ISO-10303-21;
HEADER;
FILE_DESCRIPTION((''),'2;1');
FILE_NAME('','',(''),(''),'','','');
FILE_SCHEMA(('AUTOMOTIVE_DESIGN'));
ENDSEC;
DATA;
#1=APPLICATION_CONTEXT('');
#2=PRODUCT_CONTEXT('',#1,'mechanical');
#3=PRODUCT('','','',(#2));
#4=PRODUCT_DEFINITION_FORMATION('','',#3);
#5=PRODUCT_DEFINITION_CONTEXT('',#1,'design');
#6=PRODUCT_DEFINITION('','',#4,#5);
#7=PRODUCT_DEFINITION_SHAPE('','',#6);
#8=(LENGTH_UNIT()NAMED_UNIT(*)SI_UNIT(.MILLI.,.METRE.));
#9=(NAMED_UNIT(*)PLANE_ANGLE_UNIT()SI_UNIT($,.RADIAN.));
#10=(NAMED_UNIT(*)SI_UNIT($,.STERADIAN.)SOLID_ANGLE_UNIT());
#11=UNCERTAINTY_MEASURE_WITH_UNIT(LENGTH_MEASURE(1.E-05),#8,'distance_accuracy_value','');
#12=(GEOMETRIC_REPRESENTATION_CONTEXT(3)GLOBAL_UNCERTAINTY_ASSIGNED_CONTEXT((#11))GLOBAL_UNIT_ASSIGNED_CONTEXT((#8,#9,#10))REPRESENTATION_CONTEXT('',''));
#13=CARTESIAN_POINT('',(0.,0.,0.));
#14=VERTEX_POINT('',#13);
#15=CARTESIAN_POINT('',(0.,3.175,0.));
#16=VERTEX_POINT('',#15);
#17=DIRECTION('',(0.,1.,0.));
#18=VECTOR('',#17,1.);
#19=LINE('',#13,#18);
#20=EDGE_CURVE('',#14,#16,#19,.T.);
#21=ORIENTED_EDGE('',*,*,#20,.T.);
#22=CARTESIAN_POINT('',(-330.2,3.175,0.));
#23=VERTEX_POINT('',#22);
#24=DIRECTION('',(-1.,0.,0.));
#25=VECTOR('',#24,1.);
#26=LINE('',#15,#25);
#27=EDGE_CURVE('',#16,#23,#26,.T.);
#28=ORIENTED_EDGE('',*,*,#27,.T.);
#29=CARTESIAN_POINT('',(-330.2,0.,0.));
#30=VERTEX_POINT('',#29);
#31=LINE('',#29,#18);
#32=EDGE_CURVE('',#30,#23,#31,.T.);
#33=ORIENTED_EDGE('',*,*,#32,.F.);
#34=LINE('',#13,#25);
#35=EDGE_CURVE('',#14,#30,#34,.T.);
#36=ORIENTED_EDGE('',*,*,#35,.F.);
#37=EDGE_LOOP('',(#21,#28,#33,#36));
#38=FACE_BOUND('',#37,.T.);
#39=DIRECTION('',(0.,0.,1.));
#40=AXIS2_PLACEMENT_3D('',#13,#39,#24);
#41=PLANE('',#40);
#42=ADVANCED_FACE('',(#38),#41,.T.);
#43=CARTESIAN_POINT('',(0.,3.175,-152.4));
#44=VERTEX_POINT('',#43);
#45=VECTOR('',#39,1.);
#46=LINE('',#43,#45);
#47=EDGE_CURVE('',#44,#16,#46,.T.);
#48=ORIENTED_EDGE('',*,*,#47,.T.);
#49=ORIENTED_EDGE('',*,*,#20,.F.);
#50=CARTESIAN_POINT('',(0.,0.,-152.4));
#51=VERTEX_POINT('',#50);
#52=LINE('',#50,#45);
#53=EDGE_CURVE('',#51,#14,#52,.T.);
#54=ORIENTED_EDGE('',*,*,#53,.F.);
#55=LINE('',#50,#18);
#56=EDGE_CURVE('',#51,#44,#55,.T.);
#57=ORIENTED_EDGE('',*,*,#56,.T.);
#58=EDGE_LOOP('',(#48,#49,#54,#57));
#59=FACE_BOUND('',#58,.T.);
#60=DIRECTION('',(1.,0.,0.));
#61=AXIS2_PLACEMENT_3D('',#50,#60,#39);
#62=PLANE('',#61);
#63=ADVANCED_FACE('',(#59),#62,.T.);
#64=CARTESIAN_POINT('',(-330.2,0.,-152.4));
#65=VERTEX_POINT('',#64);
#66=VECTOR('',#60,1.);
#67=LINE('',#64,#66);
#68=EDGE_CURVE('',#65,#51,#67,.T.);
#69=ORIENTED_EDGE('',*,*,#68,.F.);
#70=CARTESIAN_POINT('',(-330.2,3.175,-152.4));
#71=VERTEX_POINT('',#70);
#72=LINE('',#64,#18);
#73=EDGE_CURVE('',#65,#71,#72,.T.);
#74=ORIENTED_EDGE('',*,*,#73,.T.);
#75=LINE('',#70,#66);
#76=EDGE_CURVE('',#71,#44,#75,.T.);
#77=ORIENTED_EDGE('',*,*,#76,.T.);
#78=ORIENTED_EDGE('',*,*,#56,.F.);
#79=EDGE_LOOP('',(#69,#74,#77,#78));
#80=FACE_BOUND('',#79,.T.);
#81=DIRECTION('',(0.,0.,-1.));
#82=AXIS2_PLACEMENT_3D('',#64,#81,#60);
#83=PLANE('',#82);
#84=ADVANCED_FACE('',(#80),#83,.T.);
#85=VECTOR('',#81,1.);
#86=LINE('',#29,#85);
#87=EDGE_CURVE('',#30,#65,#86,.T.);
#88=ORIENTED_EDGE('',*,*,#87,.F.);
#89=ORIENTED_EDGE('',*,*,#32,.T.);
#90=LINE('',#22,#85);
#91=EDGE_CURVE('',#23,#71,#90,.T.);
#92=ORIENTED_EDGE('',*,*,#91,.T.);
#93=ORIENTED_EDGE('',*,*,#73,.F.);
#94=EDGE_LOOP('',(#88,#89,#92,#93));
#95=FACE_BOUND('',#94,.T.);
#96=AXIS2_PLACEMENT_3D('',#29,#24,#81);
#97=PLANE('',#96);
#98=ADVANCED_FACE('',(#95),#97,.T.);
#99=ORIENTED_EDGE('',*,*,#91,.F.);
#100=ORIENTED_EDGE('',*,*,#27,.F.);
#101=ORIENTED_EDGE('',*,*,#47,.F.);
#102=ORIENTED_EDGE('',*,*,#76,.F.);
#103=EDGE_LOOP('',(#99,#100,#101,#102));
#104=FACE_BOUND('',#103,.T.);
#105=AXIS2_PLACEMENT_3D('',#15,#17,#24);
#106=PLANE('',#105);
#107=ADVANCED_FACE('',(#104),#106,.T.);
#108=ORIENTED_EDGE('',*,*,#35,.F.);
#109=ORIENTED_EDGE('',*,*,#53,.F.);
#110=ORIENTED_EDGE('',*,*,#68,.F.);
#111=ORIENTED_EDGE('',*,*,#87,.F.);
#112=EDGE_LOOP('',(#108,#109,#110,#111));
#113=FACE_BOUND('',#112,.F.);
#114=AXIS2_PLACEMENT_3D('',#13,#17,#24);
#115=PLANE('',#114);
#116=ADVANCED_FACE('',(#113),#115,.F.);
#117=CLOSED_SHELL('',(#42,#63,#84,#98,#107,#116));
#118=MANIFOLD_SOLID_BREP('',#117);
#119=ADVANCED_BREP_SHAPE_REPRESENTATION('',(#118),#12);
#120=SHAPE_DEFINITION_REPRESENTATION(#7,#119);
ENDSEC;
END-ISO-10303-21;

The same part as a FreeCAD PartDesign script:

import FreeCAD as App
import Part
import Sketcher
Q = App.Units.Quantity


def add_polygon(sketch, points):
    """Adds a closed chain of lines whose ends are joined by coincident constraints."""
    first, n = sketch.GeometryCount, len(points)
    for a, b in zip(points, points[1:] + points[:1]):
        sketch.addGeometry(Part.LineSegment(App.Vector(*a, 0), App.Vector(*b, 0)), False)
    for i in range(n):
        sketch.addConstraint(Sketcher.Constraint("Coincident", first + i, 2, first + (i + 1) % n, 1))

doc = App.newDocument("Part")
body = doc.addObject("PartDesign::Body", "Body")

sketch1 = body.newObject("Sketcher::SketchObject", "Sketch")
sketch1.AttachmentSupport = (doc.getObject("XZ_Plane"), [""])
sketch1.MapMode = "FlatFace"
add_polygon(sketch1, [(-330, 0), (0, 0), (0, -152), (-330, -152)])
sketch1.addConstraint(Sketcher.Constraint("Horizontal", 0))
sketch1.addConstraint(Sketcher.Constraint("Vertical", 1))
sketch1.addConstraint(Sketcher.Constraint("Horizontal", 2))
sketch1.addConstraint(Sketcher.Constraint("Vertical", 3))
sketch1.addConstraint(Sketcher.Constraint("Coincident", 0, 2, -1, 1))
sketch1.addConstraint(Sketcher.Constraint("DistanceX", 0, 1, 0, 2, Q("13 in")))
sketch1.addConstraint(Sketcher.Constraint("DistanceY", 1, 2, 1, 1, Q("6 in")))
pad1 = body.newObject("PartDesign::Pad", "Pad")
pad1.Profile = sketch1
pad1.Length = Q("0.125 in")
pad1.Reversed = True

doc.recompute()
